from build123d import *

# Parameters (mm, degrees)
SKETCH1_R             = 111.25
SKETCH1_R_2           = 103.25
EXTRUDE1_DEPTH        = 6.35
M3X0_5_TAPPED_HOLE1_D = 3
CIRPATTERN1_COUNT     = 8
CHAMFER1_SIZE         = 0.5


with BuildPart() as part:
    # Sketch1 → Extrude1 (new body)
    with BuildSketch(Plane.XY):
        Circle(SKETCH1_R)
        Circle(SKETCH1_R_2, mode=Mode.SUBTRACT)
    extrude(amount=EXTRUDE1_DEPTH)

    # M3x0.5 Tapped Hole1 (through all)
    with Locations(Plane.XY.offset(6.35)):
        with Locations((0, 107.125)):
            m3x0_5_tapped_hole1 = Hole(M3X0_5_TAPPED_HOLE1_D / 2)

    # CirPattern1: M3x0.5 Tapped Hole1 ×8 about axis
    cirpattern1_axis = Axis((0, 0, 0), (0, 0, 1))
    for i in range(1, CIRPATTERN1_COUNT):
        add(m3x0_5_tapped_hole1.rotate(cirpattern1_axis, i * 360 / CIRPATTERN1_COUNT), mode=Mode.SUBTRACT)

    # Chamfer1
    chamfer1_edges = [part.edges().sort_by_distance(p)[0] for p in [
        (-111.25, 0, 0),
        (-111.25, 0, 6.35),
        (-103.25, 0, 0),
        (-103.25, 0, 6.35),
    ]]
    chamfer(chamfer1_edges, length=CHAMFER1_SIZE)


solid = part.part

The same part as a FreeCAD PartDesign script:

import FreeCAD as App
import Part
import Sketcher

V = App.Vector


def edges_at(feature, points):
    """Names of the edges that pass closest to the given points."""
    edges = feature.Shape.Edges
    near = lambda p: min(range(len(edges)), key=lambda i: edges[i].distToShape(Part.Vertex(*p))[0])
    return sorted({f"Edge{near(p) + 1}" for p in points})

doc = App.newDocument("Part")
body = doc.addObject("PartDesign::Body", "Body")

# Sketch on XY plane
sketch1 = body.newObject("Sketcher::SketchObject", "Sketch")
sketch1.AttachmentSupport = (doc.getObject("XY_Plane"), [""])
sketch1.MapMode = "FlatFace"
sketch1.addGeometry([
    Part.Circle(V(0, 0, 0), V(0, 0, 1), 111),
    Part.Circle(V(0, 0, 0), V(0, 0, 1), 103),
], False)
sketch1.addConstraint([
    Sketcher.Constraint("Coincident", 0, 3, -1, 1),
    Sketcher.Constraint("Coincident", 1, 3, -1, 1),
    Sketcher.Constraint("Diameter", 0, 222.5),
    Sketcher.Constraint("Diameter", 1, 206.5),
])
pad1 = body.newObject("PartDesign::Pad", "Pad")
pad1.Profile = sketch1
pad1.Length = 6.35

# Sketch on XY plane
sketch2 = body.newObject("Sketcher::SketchObject", "Sketch001")
sketch2.AttachmentSupport = (doc.getObject("XY_Plane"), [""])
sketch2.MapMode = "FlatFace"
sketch2.AttachmentOffset = App.Placement(V(0, 0, 6.35), App.Rotation())
sketch2.addGeometry(Part.Circle(V(0, 107.1, 0), V(0, 0, 1), 1.5), False)
sketch2.addConstraint([
    Sketcher.Constraint("PointOnObject", 0, 3, -2),
    Sketcher.Constraint("Diameter", 0, 3.0),
    Sketcher.Constraint("DistanceY", -1, 1, 0, 3, 107.125),
])
doc.recompute()
hole = body.newObject("PartDesign::Hole", "Hole")
hole.Profile = sketch2
hole.ThreadType = "None"
hole.Diameter = 3
hole.DepthType = "ThroughAll"
doc.recompute()

polarpattern = body.newObject("PartDesign::PolarPattern", "PolarPattern")
polarpattern.Originals = [hole]
polarpattern.Axis = (doc.getObject("Z_Axis"), [""])
polarpattern.Angle = 360
polarpattern.Occurrences = 8
body.Tip = polarpattern
doc.recompute()

chamfer = body.newObject("PartDesign::Chamfer", "Chamfer")
chamfer.Base = (polarpattern, edges_at(polarpattern, [
    (-111.25, 0, 0),
    (-111.25, 0, 6.35),
    (-103.25, 0, 0),
    (-103.25, 0, 6.35),
]))
chamfer.Size = 0.5

doc.recompute()
